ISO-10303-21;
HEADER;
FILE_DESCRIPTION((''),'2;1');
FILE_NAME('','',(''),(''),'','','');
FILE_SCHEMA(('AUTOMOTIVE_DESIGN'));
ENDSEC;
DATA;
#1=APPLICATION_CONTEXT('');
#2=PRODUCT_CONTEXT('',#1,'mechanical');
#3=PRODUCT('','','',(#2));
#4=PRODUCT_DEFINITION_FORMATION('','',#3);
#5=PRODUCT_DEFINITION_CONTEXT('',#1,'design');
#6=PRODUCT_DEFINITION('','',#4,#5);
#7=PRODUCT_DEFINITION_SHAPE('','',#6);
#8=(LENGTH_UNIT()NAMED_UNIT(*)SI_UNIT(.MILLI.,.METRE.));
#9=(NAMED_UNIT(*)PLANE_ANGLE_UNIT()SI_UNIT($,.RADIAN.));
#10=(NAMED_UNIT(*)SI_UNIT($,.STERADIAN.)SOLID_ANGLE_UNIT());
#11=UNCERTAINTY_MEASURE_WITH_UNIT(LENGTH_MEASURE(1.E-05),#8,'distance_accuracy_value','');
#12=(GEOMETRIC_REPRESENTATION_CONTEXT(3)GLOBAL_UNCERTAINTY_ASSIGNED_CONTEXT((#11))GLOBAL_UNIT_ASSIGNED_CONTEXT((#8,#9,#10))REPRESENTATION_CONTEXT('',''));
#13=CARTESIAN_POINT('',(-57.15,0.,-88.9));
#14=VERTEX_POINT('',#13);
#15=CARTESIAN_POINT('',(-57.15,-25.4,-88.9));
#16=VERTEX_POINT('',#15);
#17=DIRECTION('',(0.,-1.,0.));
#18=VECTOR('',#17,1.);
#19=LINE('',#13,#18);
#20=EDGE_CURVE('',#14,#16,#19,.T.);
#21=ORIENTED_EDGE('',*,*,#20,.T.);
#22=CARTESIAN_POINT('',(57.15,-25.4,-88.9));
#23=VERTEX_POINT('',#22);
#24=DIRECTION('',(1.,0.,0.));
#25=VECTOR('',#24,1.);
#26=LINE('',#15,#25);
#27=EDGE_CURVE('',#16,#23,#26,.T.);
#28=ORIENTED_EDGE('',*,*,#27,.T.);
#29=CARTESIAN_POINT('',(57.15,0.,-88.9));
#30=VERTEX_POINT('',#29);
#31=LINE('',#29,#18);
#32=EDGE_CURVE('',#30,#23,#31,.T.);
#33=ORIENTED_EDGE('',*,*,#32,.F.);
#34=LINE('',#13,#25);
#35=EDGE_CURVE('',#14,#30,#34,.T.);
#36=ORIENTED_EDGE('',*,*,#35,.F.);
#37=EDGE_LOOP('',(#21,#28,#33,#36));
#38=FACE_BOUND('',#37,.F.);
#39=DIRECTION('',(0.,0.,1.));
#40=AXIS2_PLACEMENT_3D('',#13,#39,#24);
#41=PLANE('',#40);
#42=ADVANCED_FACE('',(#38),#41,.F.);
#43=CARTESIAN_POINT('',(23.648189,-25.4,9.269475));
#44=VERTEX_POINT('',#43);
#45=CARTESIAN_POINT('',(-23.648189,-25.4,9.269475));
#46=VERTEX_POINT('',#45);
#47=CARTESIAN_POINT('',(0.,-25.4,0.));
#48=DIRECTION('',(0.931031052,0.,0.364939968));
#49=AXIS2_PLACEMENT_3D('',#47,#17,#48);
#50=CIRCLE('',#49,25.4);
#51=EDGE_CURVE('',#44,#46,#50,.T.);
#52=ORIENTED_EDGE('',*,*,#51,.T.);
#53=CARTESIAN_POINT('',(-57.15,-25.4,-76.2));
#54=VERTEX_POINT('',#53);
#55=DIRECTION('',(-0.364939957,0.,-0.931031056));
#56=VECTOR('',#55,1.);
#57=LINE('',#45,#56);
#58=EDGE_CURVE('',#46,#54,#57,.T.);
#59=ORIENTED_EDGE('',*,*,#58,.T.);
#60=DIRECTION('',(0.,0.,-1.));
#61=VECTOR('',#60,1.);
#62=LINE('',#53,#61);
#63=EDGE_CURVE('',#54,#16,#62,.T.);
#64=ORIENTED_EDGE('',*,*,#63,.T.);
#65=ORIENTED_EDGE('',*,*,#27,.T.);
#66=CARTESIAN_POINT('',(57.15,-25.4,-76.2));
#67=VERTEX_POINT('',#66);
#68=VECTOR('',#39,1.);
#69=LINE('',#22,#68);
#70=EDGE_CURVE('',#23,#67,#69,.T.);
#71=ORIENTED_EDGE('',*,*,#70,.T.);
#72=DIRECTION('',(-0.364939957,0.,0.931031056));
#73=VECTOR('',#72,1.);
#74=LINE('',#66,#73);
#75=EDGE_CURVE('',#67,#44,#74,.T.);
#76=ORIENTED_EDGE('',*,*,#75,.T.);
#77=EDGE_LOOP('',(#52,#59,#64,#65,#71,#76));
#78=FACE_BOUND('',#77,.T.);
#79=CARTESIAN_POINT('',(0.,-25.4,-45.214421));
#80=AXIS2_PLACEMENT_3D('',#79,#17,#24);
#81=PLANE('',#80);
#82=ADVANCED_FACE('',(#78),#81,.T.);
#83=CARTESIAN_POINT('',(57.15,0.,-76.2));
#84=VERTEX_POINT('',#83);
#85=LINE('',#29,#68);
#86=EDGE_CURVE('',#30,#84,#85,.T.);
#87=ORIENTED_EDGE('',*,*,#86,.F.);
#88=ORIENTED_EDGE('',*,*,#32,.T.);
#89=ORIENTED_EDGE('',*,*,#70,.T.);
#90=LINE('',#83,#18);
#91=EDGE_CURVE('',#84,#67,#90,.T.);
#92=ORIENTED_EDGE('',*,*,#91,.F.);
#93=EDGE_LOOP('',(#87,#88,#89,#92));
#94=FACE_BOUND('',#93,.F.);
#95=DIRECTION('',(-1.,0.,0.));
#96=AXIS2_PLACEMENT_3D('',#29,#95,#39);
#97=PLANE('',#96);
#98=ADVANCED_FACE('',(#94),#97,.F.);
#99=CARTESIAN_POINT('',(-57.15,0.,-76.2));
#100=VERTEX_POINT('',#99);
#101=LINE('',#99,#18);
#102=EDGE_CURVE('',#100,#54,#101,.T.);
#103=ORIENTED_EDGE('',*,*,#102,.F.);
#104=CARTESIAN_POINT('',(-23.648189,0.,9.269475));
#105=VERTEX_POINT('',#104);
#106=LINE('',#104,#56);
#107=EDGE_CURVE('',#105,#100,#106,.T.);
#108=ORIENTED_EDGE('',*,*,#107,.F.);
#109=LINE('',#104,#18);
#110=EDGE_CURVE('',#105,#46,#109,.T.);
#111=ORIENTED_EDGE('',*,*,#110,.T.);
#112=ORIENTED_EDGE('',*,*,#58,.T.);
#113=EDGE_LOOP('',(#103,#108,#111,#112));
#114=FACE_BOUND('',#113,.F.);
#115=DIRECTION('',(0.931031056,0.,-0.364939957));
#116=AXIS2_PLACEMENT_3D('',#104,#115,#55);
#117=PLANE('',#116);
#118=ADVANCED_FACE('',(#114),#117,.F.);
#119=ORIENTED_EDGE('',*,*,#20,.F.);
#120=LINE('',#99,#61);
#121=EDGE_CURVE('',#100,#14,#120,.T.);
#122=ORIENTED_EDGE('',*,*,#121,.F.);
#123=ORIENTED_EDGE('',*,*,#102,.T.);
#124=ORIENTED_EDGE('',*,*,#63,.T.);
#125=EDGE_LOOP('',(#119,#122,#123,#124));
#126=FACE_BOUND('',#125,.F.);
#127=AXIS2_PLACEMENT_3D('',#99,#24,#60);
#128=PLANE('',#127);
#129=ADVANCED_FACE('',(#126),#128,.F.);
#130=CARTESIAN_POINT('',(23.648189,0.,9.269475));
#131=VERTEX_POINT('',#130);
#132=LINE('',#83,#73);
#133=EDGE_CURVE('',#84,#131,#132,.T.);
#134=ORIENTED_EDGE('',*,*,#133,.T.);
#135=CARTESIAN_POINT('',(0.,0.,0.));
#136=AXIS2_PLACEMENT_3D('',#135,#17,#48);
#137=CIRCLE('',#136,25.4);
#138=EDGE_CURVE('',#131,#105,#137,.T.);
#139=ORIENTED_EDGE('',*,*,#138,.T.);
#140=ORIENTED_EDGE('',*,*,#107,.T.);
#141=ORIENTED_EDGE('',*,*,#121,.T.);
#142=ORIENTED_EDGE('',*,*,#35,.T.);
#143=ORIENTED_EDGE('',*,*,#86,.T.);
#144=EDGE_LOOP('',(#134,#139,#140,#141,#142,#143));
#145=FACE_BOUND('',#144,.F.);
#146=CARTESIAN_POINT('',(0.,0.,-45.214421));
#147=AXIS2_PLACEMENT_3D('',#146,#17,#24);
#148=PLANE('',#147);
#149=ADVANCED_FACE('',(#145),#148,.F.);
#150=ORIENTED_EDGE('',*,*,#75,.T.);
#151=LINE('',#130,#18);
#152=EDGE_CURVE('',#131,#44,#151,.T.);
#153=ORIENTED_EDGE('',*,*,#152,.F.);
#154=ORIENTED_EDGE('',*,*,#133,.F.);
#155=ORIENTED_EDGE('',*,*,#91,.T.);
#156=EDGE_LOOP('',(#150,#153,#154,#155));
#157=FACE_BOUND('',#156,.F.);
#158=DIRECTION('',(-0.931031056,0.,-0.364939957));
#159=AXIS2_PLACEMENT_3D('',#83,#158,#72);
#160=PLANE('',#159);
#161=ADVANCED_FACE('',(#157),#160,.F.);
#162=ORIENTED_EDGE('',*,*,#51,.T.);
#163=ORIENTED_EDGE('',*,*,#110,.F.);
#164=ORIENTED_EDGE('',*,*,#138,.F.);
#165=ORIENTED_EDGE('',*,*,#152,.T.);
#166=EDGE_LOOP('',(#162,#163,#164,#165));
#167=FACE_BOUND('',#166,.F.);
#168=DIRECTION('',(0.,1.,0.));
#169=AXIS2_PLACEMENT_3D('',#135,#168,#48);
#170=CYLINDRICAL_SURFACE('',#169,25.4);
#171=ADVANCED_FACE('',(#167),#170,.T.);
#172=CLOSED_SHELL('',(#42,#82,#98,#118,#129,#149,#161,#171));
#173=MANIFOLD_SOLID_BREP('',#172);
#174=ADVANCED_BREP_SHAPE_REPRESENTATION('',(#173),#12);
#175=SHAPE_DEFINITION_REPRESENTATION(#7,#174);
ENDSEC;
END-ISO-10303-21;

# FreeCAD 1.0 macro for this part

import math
import FreeCAD as App
import Part
import Sketcher
Q = App.Units.Quantity

doc = App.newDocument("Part")
body = doc.addObject("PartDesign::Body", "Body")

# Sketch on XZ plane
sketch1 = body.newObject("Sketcher::SketchObject", "Sketch")
sketch1.AttachmentSupport = (doc.getObject("XZ_Plane"), [""])
sketch1.MapMode = "FlatFace"
sketch1.addGeometry(Part.LineSegment(App.Vector(57, -76, 0), App.Vector(24, 9, 0)), False)
sketch1.addGeometry(Part.ArcOfCircle(Part.Circle(App.Vector(0, 0, 0), App.Vector(0, 0, 1), 25), math.radians(21), math.radians(159)), False)
sketch1.addGeometry(Part.LineSegment(App.Vector(-24, 9, 0), App.Vector(-57, -76, 0)), False)
sketch1.addGeometry(Part.LineSegment(App.Vector(-57, -76, 0), App.Vector(-57, -89, 0)), False)
sketch1.addGeometry(Part.LineSegment(App.Vector(-57, -89, 0), App.Vector(57, -89, 0)), False)
sketch1.addGeometry(Part.LineSegment(App.Vector(57, -89, 0), App.Vector(57, -76, 0)), False)
sketch1.addConstraint(Sketcher.Constraint("Tangent", 0, 2, 1, 1))
sketch1.addConstraint(Sketcher.Constraint("Tangent", 1, 2, 2, 1))
sketch1.addConstraint(Sketcher.Constraint("Coincident", 2, 2, 3, 1))
sketch1.addConstraint(Sketcher.Constraint("Coincident", 3, 2, 4, 1))
sketch1.addConstraint(Sketcher.Constraint("Coincident", 4, 2, 5, 1))
sketch1.addConstraint(Sketcher.Constraint("Coincident", 5, 2, 0, 1))
sketch1.addConstraint(Sketcher.Constraint("Vertical", 3))
sketch1.addConstraint(Sketcher.Constraint("Horizontal", 4))
sketch1.addConstraint(Sketcher.Constraint("Vertical", 5))
sketch1.addConstraint(Sketcher.Constraint("Coincident", 1, 3, -1, 1))
sketch1.addConstraint(Sketcher.Constraint("Symmetric", 2, 2, 5, 2, -2))
sketch1.addConstraint(Sketcher.Constraint("Radius", 1, Q("1 in")))
sketch1.addConstraint(Sketcher.Constraint("DistanceX", 4, 1, 4, 2, Q("4.5 in")))
sketch1.addConstraint(Sketcher.Constraint("DistanceY", 3, 2, 3, 1, Q("0.5 in")))
sketch1.addConstraint(Sketcher.Constraint("DistanceY", 2, 2, -1, 1, Q("3 in")))
pad1 = body.newObject("PartDesign::Pad", "Pad")
pad1.Profile = sketch1
pad1.Length = Q("1 in")

doc.recompute()
